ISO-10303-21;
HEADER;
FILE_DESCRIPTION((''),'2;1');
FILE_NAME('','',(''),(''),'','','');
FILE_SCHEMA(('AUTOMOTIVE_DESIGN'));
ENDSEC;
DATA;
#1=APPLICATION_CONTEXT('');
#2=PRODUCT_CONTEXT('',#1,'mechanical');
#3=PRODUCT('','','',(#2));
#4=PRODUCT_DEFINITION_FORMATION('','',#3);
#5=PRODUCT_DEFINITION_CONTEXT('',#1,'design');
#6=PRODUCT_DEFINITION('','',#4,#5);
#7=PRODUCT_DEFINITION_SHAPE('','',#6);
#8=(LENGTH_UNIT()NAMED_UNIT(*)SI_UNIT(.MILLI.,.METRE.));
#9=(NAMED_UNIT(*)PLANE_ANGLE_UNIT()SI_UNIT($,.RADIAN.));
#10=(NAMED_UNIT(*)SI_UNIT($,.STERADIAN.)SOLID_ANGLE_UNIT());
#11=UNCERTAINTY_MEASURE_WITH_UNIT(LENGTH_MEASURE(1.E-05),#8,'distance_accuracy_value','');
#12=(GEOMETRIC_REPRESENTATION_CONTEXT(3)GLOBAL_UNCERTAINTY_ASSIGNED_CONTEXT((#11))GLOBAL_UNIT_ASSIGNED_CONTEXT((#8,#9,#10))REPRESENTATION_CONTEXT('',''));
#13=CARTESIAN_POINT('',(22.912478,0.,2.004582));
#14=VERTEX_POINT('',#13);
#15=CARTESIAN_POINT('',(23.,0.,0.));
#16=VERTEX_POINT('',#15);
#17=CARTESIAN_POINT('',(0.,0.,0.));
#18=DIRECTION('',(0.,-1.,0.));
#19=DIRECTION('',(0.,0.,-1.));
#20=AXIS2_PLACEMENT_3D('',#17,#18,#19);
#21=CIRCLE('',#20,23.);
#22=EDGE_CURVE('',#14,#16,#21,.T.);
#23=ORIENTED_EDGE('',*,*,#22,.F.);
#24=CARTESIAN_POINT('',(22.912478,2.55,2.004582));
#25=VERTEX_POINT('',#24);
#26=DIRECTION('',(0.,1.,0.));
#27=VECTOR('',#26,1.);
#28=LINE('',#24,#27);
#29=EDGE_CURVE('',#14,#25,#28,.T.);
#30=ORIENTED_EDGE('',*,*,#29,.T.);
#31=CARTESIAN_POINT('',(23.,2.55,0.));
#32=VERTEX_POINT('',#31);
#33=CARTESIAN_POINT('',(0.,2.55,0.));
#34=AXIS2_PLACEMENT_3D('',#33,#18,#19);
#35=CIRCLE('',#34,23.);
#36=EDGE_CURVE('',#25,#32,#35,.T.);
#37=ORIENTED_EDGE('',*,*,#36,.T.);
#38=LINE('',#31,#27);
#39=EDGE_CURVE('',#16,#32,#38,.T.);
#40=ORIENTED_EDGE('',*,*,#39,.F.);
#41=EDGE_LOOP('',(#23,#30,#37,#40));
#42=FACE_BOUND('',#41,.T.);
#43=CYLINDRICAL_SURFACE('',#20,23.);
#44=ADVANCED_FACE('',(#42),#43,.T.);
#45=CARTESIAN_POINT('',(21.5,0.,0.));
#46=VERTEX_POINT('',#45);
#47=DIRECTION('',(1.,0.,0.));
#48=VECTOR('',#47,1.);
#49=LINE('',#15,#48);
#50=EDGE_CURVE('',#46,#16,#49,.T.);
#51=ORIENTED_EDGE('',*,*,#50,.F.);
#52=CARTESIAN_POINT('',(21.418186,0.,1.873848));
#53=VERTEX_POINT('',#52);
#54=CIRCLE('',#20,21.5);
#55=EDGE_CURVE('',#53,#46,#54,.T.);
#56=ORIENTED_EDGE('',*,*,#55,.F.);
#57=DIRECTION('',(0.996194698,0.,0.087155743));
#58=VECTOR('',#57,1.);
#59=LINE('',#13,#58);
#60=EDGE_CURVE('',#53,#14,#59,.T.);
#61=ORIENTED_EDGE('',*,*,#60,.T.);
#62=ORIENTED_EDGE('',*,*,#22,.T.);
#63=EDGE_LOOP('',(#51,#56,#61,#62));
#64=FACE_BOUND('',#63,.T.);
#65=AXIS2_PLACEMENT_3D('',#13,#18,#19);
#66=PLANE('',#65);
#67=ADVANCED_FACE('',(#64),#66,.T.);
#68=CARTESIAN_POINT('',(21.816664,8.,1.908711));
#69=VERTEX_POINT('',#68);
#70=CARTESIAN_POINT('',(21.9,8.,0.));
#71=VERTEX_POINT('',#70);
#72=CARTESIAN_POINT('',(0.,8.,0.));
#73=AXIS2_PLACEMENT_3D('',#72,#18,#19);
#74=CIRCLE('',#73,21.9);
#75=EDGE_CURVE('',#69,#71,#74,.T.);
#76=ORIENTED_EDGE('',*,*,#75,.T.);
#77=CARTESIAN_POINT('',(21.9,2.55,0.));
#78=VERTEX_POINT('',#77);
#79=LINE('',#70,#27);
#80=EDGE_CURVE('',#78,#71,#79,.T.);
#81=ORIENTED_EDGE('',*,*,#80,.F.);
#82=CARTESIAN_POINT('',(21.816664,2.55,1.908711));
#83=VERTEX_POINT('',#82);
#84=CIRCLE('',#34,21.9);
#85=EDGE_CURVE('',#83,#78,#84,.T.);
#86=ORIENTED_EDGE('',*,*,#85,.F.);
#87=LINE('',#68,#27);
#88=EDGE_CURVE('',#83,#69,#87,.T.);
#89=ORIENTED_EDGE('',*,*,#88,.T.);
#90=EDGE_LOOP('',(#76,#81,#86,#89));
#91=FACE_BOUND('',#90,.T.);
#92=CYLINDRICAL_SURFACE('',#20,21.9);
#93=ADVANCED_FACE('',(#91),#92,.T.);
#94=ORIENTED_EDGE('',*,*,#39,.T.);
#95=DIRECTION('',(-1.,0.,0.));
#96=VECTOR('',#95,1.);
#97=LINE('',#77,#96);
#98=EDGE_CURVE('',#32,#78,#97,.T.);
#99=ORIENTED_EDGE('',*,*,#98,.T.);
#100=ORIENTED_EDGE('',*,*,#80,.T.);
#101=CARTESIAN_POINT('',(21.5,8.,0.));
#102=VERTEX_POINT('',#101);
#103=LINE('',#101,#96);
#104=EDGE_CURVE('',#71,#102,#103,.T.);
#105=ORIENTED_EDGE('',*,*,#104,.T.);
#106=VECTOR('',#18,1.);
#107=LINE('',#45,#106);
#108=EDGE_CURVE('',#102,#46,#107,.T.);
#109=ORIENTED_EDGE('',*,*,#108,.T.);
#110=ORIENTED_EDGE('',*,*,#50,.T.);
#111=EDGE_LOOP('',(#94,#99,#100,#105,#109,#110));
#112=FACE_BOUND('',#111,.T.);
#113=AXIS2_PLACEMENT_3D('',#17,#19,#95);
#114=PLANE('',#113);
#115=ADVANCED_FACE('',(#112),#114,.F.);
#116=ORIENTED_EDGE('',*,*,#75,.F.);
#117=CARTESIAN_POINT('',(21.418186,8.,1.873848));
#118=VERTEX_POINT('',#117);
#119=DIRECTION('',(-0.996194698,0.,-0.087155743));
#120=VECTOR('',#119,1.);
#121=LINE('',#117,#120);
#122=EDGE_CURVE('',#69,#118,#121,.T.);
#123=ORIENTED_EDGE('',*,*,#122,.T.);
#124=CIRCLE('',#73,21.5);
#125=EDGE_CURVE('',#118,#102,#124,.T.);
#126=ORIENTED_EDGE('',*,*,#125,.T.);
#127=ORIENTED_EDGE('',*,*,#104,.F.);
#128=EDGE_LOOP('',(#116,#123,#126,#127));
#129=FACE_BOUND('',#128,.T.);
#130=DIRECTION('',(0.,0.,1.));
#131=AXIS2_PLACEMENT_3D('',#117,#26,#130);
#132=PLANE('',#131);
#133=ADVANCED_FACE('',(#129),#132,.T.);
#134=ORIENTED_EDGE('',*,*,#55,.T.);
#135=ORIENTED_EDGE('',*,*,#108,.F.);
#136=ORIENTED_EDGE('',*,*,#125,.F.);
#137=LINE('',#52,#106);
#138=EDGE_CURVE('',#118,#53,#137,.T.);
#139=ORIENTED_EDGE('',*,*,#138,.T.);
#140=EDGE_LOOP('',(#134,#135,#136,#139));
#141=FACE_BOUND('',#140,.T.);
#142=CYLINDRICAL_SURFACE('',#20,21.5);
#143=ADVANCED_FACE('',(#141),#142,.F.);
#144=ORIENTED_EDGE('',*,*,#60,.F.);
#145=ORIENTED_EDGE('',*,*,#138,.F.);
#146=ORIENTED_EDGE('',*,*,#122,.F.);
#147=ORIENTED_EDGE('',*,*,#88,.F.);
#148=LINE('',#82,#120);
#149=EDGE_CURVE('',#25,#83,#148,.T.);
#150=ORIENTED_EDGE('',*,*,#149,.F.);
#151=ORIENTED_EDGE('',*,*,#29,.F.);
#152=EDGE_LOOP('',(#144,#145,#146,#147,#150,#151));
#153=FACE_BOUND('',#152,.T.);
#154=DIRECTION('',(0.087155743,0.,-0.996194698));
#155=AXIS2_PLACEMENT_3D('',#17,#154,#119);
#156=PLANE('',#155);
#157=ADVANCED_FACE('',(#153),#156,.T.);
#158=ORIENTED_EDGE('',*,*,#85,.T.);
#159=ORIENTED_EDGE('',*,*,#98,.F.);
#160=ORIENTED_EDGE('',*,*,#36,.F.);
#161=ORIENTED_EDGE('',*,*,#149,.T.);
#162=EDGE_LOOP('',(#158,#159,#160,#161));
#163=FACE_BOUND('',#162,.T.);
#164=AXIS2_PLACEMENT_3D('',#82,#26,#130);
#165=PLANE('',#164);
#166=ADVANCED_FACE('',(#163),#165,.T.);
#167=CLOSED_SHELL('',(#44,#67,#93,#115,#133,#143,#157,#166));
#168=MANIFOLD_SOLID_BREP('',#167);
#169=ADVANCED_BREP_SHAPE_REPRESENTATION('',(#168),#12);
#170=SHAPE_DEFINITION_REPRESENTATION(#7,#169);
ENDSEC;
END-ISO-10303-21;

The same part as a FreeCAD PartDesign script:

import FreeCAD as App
import Part
import Sketcher
from FreeCAD import Vector


def add_polygon(sketch, points):
    """Adds a closed chain of lines whose ends are joined by coincident constraints."""
    first, n = sketch.GeometryCount, len(points)
    for a, b in zip(points, points[1:] + points[:1]):
        sketch.addGeometry(Part.LineSegment(App.Vector(*a, 0), App.Vector(*b, 0)), False)
    for i in range(n):
        sketch.addConstraint(Sketcher.Constraint("Coincident", first + i, 2, first + (i + 1) % n, 1))

doc = App.newDocument("Part")
params = doc.addObject("Spreadsheet::Sheet", "Params")
for row, (alias, value) in enumerate([
    ("sketch1_height", "8 mm"),
    ("sketch1_width", "1.5 mm"),
    ("sketch1_width2", "1.1 mm"),
    ("sketch1_height2", "2.55 mm"),
    ("revolution_angle", "355 deg"),
], start=1):
    params.set(f"A{row}", alias)
    params.set(f"B{row}", "=" + value)
    params.setAlias(f"B{row}", alias)

body = doc.addObject("PartDesign::Body", "Body")

sketch1 = body.newObject("Sketcher::SketchObject", "Sketch")
sketch1.AttachmentSupport = (doc.getObject("XY_Plane"), [""])
sketch1.MapMode = "FlatFace"
add_polygon(sketch1, [(21.5, 8), (21.5, 0), (23, 0), (23, 2.55), (21.9, 2.55), (21.9, 8)])
sketch1.addConstraint([
    Sketcher.Constraint("Vertical", 0),
    Sketcher.Constraint("Horizontal", 1),
    Sketcher.Constraint("Vertical", 2),
    Sketcher.Constraint("Horizontal", 3),
    Sketcher.Constraint("Vertical", 4),
    Sketcher.Constraint("Horizontal", 5),
    Sketcher.Constraint("PointOnObject", 0, 2, -1),
    Sketcher.Constraint("DistanceY", 0, 2, 0, 1, 8.0),
    Sketcher.Constraint("DistanceX", 1, 1, 1, 2, 1.5),
    Sketcher.Constraint("DistanceX", 3, 2, 3, 1, 1.1),
    Sketcher.Constraint("DistanceX", -1, 1, 1, 2, 23.0),
    Sketcher.Constraint("DistanceY", 2, 1, 2, 2, 2.55),
])
sketch1.setExpression("Constraints[13]", "Params.sketch1_height")
sketch1.setExpression("Constraints[14]", "Params.sketch1_width")
sketch1.setExpression("Constraints[15]", "Params.sketch1_width2")
sketch1.setExpression("Constraints[17]", "Params.sketch1_height2")
revolution = body.newObject("PartDesign::Revolution", "Revolution")
revolution.Profile = sketch1
revolution.ReferenceAxis = (sketch1, ["V_Axis"])
revolution.setExpression("Angle", "Params.revolution_angle")

doc.recompute()
